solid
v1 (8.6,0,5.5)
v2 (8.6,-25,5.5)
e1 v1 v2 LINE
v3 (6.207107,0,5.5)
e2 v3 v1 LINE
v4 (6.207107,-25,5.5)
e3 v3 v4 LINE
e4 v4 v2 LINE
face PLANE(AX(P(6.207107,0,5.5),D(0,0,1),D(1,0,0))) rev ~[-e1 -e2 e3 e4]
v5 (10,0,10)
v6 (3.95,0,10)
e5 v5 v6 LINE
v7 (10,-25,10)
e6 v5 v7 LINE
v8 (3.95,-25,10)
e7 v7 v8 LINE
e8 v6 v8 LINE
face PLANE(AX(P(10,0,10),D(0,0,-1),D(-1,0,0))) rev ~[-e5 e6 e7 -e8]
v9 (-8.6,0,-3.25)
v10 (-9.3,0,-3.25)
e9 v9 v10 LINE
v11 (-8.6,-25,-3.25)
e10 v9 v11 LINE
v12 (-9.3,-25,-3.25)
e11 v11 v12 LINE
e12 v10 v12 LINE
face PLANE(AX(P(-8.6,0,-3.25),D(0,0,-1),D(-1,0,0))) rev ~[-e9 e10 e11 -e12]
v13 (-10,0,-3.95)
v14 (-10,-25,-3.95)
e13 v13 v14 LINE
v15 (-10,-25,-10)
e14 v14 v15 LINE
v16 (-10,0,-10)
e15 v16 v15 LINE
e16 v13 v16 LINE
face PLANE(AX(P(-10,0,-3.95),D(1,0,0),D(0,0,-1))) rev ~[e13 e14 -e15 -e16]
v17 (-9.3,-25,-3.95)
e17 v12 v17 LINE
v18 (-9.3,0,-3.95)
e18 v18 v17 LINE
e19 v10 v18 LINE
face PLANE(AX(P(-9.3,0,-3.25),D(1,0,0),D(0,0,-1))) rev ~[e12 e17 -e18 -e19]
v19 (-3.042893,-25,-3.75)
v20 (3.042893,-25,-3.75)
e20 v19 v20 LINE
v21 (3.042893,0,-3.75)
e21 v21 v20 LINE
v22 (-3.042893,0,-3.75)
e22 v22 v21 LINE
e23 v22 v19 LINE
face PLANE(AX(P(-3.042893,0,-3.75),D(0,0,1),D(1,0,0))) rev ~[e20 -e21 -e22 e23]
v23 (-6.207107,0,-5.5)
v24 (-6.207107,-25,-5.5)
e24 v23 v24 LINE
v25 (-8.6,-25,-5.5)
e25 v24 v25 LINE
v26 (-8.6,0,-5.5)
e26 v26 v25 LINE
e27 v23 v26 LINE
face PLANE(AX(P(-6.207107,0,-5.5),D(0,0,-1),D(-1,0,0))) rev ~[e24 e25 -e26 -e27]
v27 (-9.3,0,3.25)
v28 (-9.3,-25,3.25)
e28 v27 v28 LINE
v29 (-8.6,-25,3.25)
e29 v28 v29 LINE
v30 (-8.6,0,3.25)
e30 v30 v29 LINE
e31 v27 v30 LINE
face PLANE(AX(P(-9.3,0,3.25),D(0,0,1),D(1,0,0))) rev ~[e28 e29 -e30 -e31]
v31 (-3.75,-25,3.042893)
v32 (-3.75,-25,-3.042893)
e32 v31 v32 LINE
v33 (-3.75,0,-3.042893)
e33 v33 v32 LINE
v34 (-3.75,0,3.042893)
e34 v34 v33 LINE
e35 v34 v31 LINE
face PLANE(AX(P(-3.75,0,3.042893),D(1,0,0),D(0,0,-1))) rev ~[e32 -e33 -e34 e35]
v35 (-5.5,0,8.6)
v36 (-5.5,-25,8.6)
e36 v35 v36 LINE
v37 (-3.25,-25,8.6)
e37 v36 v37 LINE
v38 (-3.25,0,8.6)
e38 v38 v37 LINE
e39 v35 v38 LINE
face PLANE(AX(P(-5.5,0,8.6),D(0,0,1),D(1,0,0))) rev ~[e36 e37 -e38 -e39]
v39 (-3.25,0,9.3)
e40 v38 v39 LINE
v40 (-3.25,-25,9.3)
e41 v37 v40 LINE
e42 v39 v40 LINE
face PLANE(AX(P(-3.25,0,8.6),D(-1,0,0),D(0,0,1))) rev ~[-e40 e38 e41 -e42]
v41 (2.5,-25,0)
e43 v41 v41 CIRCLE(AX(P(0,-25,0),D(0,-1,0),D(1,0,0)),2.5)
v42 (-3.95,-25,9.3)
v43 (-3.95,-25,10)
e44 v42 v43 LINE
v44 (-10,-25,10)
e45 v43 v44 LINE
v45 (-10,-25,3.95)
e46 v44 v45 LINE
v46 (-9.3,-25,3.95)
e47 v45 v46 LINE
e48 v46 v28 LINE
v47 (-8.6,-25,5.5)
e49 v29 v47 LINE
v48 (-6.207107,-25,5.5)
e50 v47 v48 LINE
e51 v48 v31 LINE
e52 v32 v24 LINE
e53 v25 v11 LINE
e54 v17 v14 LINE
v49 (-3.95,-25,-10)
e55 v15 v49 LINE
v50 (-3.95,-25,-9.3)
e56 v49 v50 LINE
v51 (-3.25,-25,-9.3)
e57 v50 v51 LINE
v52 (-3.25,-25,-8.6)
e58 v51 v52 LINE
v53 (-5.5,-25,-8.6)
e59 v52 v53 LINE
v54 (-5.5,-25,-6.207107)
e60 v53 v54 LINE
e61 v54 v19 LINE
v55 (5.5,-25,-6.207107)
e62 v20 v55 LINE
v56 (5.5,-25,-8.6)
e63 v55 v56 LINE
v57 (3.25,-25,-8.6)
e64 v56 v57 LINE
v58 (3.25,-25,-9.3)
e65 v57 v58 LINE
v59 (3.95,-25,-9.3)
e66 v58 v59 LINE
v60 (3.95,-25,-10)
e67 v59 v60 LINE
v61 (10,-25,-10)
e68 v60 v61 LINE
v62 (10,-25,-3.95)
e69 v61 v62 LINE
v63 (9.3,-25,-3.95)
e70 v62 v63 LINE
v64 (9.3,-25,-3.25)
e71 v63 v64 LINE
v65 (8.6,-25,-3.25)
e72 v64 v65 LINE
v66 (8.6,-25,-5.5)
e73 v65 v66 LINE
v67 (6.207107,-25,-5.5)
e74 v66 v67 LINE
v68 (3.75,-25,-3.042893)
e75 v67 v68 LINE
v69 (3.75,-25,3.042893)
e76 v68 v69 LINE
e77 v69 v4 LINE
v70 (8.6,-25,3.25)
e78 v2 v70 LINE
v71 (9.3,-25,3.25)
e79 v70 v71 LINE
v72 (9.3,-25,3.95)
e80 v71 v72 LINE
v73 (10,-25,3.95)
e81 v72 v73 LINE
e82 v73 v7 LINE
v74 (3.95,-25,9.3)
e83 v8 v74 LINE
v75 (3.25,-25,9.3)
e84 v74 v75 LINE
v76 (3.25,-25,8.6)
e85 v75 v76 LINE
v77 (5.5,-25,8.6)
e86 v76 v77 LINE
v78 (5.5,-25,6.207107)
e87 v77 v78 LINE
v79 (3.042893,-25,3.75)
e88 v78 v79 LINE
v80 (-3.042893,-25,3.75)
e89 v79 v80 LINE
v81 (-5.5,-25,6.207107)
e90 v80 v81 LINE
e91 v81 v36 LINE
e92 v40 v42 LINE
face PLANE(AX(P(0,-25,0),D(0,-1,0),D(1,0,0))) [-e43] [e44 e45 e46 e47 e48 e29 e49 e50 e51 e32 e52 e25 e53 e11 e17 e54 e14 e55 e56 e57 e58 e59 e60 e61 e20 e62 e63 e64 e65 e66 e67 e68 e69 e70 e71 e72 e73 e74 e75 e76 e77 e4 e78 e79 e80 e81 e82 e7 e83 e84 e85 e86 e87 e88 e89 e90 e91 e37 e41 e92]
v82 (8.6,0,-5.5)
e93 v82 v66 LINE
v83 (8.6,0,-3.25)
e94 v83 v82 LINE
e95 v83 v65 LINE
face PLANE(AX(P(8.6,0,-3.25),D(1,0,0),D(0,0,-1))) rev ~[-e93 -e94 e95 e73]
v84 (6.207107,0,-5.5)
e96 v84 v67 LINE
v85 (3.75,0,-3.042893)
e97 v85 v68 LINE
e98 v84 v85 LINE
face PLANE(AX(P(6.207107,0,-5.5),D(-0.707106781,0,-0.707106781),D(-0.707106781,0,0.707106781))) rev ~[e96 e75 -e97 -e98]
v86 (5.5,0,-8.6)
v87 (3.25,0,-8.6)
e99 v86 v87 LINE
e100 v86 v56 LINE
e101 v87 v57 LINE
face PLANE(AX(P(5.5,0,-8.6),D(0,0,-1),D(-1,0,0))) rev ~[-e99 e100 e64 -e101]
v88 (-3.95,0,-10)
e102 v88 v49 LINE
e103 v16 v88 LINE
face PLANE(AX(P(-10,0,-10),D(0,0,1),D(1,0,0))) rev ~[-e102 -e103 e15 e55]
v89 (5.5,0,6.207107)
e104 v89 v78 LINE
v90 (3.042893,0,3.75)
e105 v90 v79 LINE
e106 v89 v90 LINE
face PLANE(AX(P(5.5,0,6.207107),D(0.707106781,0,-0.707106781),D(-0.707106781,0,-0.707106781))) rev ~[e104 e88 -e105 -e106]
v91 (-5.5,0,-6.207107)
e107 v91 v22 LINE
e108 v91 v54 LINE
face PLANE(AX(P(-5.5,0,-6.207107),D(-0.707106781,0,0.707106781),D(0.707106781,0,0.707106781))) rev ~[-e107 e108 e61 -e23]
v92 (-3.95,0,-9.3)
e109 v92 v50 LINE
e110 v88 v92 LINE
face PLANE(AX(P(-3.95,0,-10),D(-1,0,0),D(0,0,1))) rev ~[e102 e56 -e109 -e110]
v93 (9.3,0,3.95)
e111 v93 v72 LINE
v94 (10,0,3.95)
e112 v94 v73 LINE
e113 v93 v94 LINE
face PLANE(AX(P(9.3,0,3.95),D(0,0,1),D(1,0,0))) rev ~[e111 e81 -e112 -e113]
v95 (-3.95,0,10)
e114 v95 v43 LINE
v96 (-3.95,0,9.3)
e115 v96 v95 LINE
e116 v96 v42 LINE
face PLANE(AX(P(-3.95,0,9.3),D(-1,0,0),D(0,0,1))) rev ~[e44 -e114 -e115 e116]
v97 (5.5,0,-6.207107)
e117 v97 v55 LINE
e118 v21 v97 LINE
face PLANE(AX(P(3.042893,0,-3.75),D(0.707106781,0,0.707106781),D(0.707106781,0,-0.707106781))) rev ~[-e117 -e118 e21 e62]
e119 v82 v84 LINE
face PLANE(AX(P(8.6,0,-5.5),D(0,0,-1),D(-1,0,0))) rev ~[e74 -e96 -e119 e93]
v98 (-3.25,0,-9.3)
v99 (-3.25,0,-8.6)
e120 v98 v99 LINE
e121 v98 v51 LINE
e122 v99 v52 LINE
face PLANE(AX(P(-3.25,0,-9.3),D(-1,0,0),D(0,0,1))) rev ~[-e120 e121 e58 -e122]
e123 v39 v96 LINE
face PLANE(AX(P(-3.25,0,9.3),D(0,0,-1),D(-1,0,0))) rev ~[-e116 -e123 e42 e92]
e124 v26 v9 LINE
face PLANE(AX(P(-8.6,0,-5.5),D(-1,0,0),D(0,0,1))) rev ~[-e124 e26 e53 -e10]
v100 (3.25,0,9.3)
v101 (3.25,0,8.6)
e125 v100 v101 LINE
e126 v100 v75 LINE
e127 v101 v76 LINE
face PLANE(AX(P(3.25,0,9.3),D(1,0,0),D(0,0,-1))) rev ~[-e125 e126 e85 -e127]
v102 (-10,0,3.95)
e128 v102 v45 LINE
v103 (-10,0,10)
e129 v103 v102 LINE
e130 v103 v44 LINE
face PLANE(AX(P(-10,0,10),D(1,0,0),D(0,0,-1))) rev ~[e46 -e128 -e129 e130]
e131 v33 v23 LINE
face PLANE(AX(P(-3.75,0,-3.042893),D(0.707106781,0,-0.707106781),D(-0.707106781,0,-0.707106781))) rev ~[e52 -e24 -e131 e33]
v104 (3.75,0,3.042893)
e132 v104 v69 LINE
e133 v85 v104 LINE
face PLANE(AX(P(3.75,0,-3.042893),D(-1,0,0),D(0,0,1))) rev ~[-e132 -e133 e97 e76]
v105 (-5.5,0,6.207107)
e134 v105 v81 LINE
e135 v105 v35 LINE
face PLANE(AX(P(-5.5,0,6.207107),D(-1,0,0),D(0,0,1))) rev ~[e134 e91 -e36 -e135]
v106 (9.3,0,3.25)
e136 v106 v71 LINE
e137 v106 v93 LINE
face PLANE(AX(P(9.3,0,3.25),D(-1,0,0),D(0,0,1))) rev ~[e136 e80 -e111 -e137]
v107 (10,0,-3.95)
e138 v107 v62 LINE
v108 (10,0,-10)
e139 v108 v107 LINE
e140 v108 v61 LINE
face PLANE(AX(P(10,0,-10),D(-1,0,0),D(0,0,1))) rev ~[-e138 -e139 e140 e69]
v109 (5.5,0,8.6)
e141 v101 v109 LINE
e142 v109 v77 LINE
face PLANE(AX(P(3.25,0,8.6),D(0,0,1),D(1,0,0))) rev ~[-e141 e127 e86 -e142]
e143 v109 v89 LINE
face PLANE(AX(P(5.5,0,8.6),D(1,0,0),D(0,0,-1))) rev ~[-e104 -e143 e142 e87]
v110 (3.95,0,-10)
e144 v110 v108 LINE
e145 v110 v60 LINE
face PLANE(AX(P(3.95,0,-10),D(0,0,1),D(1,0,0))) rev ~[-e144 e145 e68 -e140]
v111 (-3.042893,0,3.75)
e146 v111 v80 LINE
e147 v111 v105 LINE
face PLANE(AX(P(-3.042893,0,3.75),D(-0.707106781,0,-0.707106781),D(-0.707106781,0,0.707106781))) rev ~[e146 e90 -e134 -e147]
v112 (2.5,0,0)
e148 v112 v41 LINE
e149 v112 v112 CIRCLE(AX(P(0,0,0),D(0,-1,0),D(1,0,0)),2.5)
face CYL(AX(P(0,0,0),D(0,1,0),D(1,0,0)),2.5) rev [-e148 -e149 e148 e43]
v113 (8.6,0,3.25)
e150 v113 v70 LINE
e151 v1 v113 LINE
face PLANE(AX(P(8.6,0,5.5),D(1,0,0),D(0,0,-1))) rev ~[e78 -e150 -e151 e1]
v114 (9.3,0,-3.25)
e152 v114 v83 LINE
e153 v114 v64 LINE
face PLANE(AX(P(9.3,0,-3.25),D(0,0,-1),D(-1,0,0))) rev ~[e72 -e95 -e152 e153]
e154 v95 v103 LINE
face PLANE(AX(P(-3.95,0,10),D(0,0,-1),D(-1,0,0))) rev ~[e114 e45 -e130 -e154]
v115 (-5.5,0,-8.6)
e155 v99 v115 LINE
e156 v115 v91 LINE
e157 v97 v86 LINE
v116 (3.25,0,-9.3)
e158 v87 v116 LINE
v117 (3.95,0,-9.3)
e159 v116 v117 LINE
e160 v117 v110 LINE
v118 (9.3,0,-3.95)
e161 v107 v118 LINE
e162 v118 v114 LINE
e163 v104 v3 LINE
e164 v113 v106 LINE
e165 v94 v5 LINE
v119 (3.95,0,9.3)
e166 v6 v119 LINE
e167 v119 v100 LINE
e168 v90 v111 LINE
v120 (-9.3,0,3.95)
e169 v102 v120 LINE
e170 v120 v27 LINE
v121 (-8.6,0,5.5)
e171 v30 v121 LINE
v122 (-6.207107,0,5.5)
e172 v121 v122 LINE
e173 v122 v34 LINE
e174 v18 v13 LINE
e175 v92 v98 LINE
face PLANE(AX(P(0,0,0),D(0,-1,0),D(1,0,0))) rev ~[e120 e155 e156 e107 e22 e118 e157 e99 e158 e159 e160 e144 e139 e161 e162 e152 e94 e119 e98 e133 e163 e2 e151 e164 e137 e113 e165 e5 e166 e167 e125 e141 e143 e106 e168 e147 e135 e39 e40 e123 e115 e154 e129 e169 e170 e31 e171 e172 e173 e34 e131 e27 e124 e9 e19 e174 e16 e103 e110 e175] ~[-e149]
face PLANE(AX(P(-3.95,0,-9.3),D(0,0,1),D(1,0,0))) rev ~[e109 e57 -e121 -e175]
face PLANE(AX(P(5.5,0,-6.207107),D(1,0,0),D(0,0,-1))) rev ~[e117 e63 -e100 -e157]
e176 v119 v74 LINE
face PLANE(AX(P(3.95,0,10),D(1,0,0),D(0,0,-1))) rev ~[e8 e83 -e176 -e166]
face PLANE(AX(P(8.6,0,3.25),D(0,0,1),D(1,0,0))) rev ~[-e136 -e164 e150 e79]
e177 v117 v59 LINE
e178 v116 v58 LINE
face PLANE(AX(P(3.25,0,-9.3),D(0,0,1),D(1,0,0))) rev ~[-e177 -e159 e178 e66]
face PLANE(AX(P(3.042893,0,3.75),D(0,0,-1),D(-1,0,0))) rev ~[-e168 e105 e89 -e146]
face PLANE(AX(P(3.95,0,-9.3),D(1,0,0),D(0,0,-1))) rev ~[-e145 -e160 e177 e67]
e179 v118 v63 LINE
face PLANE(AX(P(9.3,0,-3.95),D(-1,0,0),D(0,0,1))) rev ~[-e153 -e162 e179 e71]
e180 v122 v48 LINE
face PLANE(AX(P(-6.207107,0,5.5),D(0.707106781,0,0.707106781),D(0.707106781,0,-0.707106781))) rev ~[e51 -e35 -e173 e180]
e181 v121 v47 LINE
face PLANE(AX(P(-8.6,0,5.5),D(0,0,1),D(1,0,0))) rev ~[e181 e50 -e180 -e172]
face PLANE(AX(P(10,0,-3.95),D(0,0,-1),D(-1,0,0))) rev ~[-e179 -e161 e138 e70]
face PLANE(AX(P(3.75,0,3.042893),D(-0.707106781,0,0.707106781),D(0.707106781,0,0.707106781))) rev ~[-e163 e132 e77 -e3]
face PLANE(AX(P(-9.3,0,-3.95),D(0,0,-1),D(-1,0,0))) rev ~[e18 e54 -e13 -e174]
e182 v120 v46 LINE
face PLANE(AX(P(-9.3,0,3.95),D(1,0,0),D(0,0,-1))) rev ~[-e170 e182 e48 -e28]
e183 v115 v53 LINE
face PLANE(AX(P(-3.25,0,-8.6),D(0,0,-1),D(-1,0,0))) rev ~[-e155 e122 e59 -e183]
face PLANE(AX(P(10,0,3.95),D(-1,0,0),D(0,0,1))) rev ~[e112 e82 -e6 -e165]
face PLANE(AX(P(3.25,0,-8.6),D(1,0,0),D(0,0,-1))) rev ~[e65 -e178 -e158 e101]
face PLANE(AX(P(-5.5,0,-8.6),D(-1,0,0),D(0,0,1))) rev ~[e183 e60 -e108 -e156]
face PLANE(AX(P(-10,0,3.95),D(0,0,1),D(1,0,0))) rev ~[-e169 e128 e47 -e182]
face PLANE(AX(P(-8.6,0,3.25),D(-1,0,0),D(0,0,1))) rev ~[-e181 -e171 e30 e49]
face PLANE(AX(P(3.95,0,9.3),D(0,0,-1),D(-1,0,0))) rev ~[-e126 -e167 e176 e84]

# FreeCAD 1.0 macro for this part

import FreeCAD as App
import Part
import Sketcher

V = App.Vector


def add_polygon(sketch, points):
    """Adds a closed chain of lines whose ends are joined by coincident constraints."""
    first, n = sketch.GeometryCount, len(points)
    for a, b in zip(points, points[1:] + points[:1]):
        sketch.addGeometry(Part.LineSegment(App.Vector(*a, 0), App.Vector(*b, 0)), False)
    for i in range(n):
        sketch.addConstraint(Sketcher.Constraint("Coincident", first + i, 2, first + (i + 1) % n, 1))

doc = App.newDocument("Part")
body = doc.addObject("PartDesign::Body", "Body")

sketch1 = body.newObject("Sketcher::SketchObject", "Sketch")
sketch1.AttachmentSupport = (doc.getObject("XZ_Plane"), [""])
sketch1.MapMode = "FlatFace"
add_polygon(sketch1, [(10, 3.95), (10, 10), (3.95, 10), (3.95, 9.3), (3.25, 9.3), (3.25, 8.6), (5.5, 8.6), (5.5, 6.207107), (3.042893, 3.75), (-3.042893, 3.75), (-5.5, 6.207107), (-5.5, 8.6), (-3.25, 8.6), (-3.25, 9.3), (-3.95, 9.3), (-3.95, 10), (-10, 10), (-10, 3.95), (-9.3, 3.95), (-9.3, 3.25), (-8.6, 3.25), (-8.6, 5.5), (-6.207107, 5.5), (-3.75, 3.042893), (-3.75, -3.042893), (-6.207107, -5.5), (-8.6, -5.5), (-8.6, -3.25), (-9.3, -3.25), (-9.3, -3.95), (-10, -3.95), (-10, -10), (-3.95, -10), (-3.95, -9.3), (-3.25, -9.3), (-3.25, -8.6), (-5.5, -8.6), (-5.5, -6.207107), (-3.042893, -3.75), (3.042893, -3.75), (5.5, -6.207107), (5.5, -8.6), (3.25, -8.6), (3.25, -9.3), (3.95, -9.3), (3.95, -10), (10, -10), (10, -3.95), (9.3, -3.95), (9.3, -3.25), (8.6, -3.25), (8.6, -5.5), (6.207107, -5.5), (3.75, -3.042893), (3.75, 3.042893), (6.207107, 5.5), (8.6, 5.5), (8.6, 3.25), (9.3, 3.25), (9.3, 3.95)])
sketch1.addGeometry(Part.Circle(V(0, 0, 0), V(0, 0, 1), 2.5), False)
sketch1.addConstraint(Sketcher.Constraint("Vertical", 0))
sketch1.addConstraint(Sketcher.Constraint("Horizontal", 1))
sketch1.addConstraint(Sketcher.Constraint("Vertical", 2))
sketch1.addConstraint(Sketcher.Constraint("Horizontal", 3))
sketch1.addConstraint(Sketcher.Constraint("Vertical", 4))
sketch1.addConstraint(Sketcher.Constraint("Horizontal", 5))
sketch1.addConstraint(Sketcher.Constraint("Vertical", 6))
sketch1.addConstraint(Sketcher.Constraint("Horizontal", 8))
sketch1.addConstraint(Sketcher.Constraint("Vertical", 10))
sketch1.addConstraint(Sketcher.Constraint("Horizontal", 11))
sketch1.addConstraint(Sketcher.Constraint("Vertical", 12))
sketch1.addConstraint(Sketcher.Constraint("Horizontal", 13))
sketch1.addConstraint(Sketcher.Constraint("Vertical", 14))
sketch1.addConstraint(Sketcher.Constraint("Horizontal", 15))
sketch1.addConstraint(Sketcher.Constraint("Vertical", 16))
sketch1.addConstraint(Sketcher.Constraint("Horizontal", 17))
sketch1.addConstraint(Sketcher.Constraint("Vertical", 18))
sketch1.addConstraint(Sketcher.Constraint("Horizontal", 19))
sketch1.addConstraint(Sketcher.Constraint("Vertical", 20))
sketch1.addConstraint(Sketcher.Constraint("Horizontal", 21))
sketch1.addConstraint(Sketcher.Constraint("Vertical", 23))
sketch1.addConstraint(Sketcher.Constraint("Horizontal", 25))
sketch1.addConstraint(Sketcher.Constraint("Vertical", 26))
sketch1.addConstraint(Sketcher.Constraint("Horizontal", 27))
sketch1.addConstraint(Sketcher.Constraint("Vertical", 28))
sketch1.addConstraint(Sketcher.Constraint("Horizontal", 29))
sketch1.addConstraint(Sketcher.Constraint("Vertical", 30))
sketch1.addConstraint(Sketcher.Constraint("Horizontal", 31))
sketch1.addConstraint(Sketcher.Constraint("Vertical", 32))
sketch1.addConstraint(Sketcher.Constraint("Horizontal", 33))
sketch1.addConstraint(Sketcher.Constraint("Vertical", 34))
sketch1.addConstraint(Sketcher.Constraint("Horizontal", 35))
sketch1.addConstraint(Sketcher.Constraint("Vertical", 36))
sketch1.addConstraint(Sketcher.Constraint("Horizontal", 38))
sketch1.addConstraint(Sketcher.Constraint("Vertical", 40))
sketch1.addConstraint(Sketcher.Constraint("Horizontal", 41))
sketch1.addConstraint(Sketcher.Constraint("Vertical", 42))
sketch1.addConstraint(Sketcher.Constraint("Horizontal", 43))
sketch1.addConstraint(Sketcher.Constraint("Vertical", 44))
sketch1.addConstraint(Sketcher.Constraint("Horizontal", 45))
sketch1.addConstraint(Sketcher.Constraint("Vertical", 46))
sketch1.addConstraint(Sketcher.Constraint("Horizontal", 47))
sketch1.addConstraint(Sketcher.Constraint("Vertical", 48))
sketch1.addConstraint(Sketcher.Constraint("Horizontal", 49))
sketch1.addConstraint(Sketcher.Constraint("Vertical", 50))
sketch1.addConstraint(Sketcher.Constraint("Horizontal", 51))
sketch1.addConstraint(Sketcher.Constraint("Vertical", 53))
sketch1.addConstraint(Sketcher.Constraint("Horizontal", 55))
sketch1.addConstraint(Sketcher.Constraint("Vertical", 56))
sketch1.addConstraint(Sketcher.Constraint("Horizontal", 57))
sketch1.addConstraint(Sketcher.Constraint("Vertical", 58))
sketch1.addConstraint(Sketcher.Constraint("Horizontal", 59))
sketch1.addConstraint(Sketcher.Constraint("Coincident", 60, 3, -1, 1))
sketch1.addConstraint(Sketcher.Constraint("Symmetric", 0, 2, 30, 2, -1, 1))
sketch1.addConstraint(Sketcher.Constraint("Symmetric", 2, 2, 32, 2, -1, 1))
sketch1.addConstraint(Sketcher.Constraint("Symmetric", 4, 2, 34, 2, -1, 1))
sketch1.addConstraint(Sketcher.Constraint("Symmetric", 6, 2, 36, 2, -1, 1))
sketch1.addConstraint(Sketcher.Constraint("Symmetric", 7, 2, 37, 2, -1, 1))
sketch1.addConstraint(Sketcher.Constraint("Symmetric", 9, 2, 39, 2, -1, 1))
sketch1.addConstraint(Sketcher.Constraint("Symmetric", 11, 2, 41, 2, -1, 1))
sketch1.addConstraint(Sketcher.Constraint("Symmetric", 13, 2, 43, 2, -1, 1))
sketch1.addConstraint(Sketcher.Constraint("Symmetric", 15, 2, 45, 2, -1, 1))
sketch1.addConstraint(Sketcher.Constraint("Symmetric", 17, 2, 47, 2, -1, 1))
sketch1.addConstraint(Sketcher.Constraint("Symmetric", 19, 2, 49, 2, -1, 1))
sketch1.addConstraint(Sketcher.Constraint("Symmetric", 21, 2, 51, 2, -1, 1))
sketch1.addConstraint(Sketcher.Constraint("Symmetric", 22, 2, 52, 2, -1, 1))
sketch1.addConstraint(Sketcher.Constraint("Symmetric", 24, 2, 54, 2, -1, 1))
sketch1.addConstraint(Sketcher.Constraint("Symmetric", 26, 2, 56, 2, -1, 1))
sketch1.addConstraint(Sketcher.Constraint("Symmetric", 28, 2, 58, 2, -1, 1))
sketch1.addConstraint(Sketcher.Constraint("Symmetric", 6, 2, 9, 2, -2))
sketch1.addConstraint(Sketcher.Constraint("Symmetric", 4, 2, 11, 2, -2))
sketch1.addConstraint(Sketcher.Constraint("Symmetric", 2, 2, 13, 2, -2))
sketch1.addConstraint(Sketcher.Constraint("Symmetric", 0, 2, 15, 2, -2))
sketch1.addConstraint(Sketcher.Constraint("Symmetric", 28, 2, 47, 2, -2))
sketch1.addConstraint(Sketcher.Constraint("Symmetric", 26, 2, 49, 2, -2))
sketch1.addConstraint(Sketcher.Constraint("Symmetric", 24, 2, 51, 2, -2))
sketch1.addConstraint(Sketcher.Constraint("Perpendicular", 7, 9))
sketch1.addConstraint(Sketcher.Constraint("Parallel", 9, 22))
sketch1.addConstraint(Sketcher.Constraint("Perpendicular", 22, 24))
sketch1.addConstraint(Sketcher.Constraint("Perpendicular", 37, 39))
sketch1.addConstraint(Sketcher.Constraint("Perpendicular", 52, 54))
sketch1.addConstraint(Sketcher.Constraint("Horizontal", 23, 2, 52, 2))
sketch1.addConstraint(Sketcher.Constraint("Equal", 13, 17))
sketch1.addConstraint(Sketcher.Constraint("Equal", 17, 19))
sketch1.addConstraint(Sketcher.Constraint("Equal", 45, 0))
sketch1.addConstraint(Sketcher.Constraint("Equal", 59, 2))
sketch1.addConstraint(Sketcher.Constraint("Equal", 2, 4))
sketch1.addConstraint(Sketcher.Constraint("Equal", 55, 6))
sketch1.addConstraint(Sketcher.Constraint("Equal", 14, 18))
sketch1.addConstraint(Sketcher.Constraint("Equal", 41, 20))
sketch1.addConstraint(Sketcher.Constraint("Equal", 38, 23))
sketch1.addConstraint(Sketcher.Constraint("Equal", 9, 22))
sketch1.addConstraint(Sketcher.Constraint("Diameter", 60, 5.0))
sketch1.addConstraint(Sketcher.Constraint("DistanceX", 3, 2, 3, 1, 0.7))
sketch1.addConstraint(Sketcher.Constraint("DistanceX", -1, 1, 0, 2, 10.0))
sketch1.addConstraint(Sketcher.Constraint("DistanceX", 1, 2, 1, 1, 6.05))
sketch1.addConstraint(Sketcher.Constraint("DistanceX", 5, 1, 5, 2, 2.25))
sketch1.addConstraint(Sketcher.Constraint("DistanceY", -1, 1, 7, 2, 3.75))
sketch1.addConstraint(Sketcher.Constraint("DistanceX", 8, 2, 8, 1, 6.085786))
pad1 = body.newObject("PartDesign::Pad", "Pad")
pad1.Profile = sketch1
pad1.Length = 25

doc.recompute()
